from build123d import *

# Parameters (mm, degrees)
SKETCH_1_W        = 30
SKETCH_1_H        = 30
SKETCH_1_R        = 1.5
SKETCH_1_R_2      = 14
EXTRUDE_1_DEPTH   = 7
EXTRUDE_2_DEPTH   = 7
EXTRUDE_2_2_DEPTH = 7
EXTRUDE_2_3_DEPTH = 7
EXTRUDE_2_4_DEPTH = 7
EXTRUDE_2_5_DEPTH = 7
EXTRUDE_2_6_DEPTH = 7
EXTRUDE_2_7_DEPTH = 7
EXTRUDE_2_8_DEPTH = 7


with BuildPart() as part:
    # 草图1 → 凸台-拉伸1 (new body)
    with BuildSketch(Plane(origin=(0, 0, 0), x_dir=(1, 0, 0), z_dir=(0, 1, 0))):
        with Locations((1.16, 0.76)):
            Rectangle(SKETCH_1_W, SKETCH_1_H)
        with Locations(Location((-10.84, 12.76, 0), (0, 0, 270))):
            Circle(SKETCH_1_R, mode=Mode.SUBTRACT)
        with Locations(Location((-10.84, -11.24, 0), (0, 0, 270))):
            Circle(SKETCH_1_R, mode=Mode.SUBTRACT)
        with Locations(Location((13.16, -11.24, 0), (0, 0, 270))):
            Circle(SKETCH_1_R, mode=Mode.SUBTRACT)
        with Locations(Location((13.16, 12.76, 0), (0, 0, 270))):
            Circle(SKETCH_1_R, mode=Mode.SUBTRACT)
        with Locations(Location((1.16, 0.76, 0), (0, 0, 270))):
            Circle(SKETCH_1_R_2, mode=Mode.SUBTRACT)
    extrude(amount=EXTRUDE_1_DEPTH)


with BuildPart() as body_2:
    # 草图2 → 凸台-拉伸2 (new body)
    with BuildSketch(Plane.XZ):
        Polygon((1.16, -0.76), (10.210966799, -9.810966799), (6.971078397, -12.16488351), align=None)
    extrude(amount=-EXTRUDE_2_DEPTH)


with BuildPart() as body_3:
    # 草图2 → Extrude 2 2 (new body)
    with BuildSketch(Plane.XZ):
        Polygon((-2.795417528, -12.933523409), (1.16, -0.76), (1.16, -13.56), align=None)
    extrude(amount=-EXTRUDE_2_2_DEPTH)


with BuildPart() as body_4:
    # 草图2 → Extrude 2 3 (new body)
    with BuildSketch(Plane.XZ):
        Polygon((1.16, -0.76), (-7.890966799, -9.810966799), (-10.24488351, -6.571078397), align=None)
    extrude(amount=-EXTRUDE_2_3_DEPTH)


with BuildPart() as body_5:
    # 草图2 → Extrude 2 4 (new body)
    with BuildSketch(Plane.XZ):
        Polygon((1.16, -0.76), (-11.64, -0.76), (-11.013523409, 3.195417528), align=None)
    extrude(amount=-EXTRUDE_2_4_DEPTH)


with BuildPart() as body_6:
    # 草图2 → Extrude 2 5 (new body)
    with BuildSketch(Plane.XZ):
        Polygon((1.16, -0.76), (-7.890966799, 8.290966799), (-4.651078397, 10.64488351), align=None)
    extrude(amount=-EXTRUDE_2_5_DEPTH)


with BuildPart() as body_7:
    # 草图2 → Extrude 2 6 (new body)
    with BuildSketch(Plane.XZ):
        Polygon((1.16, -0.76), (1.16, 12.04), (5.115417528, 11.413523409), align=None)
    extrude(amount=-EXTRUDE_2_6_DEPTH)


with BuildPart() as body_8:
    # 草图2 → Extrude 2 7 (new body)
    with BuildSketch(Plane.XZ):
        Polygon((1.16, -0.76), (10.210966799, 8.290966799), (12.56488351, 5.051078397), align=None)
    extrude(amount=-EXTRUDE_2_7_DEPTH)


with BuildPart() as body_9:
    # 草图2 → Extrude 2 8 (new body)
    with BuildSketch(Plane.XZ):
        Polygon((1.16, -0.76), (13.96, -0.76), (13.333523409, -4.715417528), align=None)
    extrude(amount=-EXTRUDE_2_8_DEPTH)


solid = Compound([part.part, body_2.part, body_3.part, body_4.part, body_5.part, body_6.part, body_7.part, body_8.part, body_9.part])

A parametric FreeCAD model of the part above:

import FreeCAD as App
import Part
import Sketcher

V = App.Vector
Q = App.Units.Quantity

doc = App.newDocument("Part")
body = doc.addObject("PartDesign::Body", "Body")

# Sketch on XZ plane
sketch1 = body.newObject("Sketcher::SketchObject", "Sketch")
sketch1.AttachmentSupport = (doc.getObject("XZ_Plane"), [""])
sketch1.MapMode = "FlatFace"
sketch1.addGeometry([
    Part.LineSegment(V(-13.84, -15.76, 0), V(-13.84, 14.24, 0)),  # 0
    Part.LineSegment(V(-13.84, 14.24, 0), V(16.16, 14.24, 0)),  # 1
    Part.LineSegment(V(16.16, 14.24, 0), V(16.16, -15.76, 0)),  # 2
    Part.LineSegment(V(16.16, -15.76, 0), V(-13.84, -15.76, 0)),  # 3
    Part.Circle(V(-10.84, 11.24, 0), V(0, 0, 1), 1.5),  # 4
    Part.Circle(V(13.16, 11.24, 0), V(0, 0, 1), 1.5),  # 5
    Part.Circle(V(-10.84, -12.76, 0), V(0, 0, 1), 1.5),  # 6
    Part.Circle(V(1.16, -0.76, 0), V(0, 0, 1), 14),  # 7
    Part.Circle(V(13.16, -12.76, 0), V(0, 0, 1), 1.5),  # 8
], False)
sketch1.addConstraint([
    Sketcher.Constraint("Coincident", 0, 2, 1, 1),
    Sketcher.Constraint("Coincident", 1, 2, 2, 1),
    Sketcher.Constraint("Coincident", 2, 2, 3, 1),
    Sketcher.Constraint("Coincident", 3, 2, 0, 1),
    Sketcher.Constraint("Vertical", 0),
    Sketcher.Constraint("Horizontal", 1),
    Sketcher.Constraint("Vertical", 2),
    Sketcher.Constraint("Horizontal", 3),
    Sketcher.Constraint("Equal", 4, 5),
    Sketcher.Constraint("Equal", 5, 6),
    Sketcher.Constraint("Equal", 6, 8),
    Sketcher.Constraint("Horizontal", 4, 3, 5, 3),
    Sketcher.Constraint("Horizontal", 6, 3, 8, 3),
    Sketcher.Constraint("Vertical", 4, 3, 6, 3),
    Sketcher.Constraint("Vertical", 5, 3, 8, 3),
    Sketcher.Constraint("Equal", 3, 0),
    Sketcher.Constraint("Diameter", 4, Q("3 mm")),
    Sketcher.Constraint("Diameter", 7, Q("28 mm")),
    Sketcher.Constraint("DistanceX", 1, 1, 1, 2, Q("30 mm")),
    Sketcher.Constraint("DistanceX", 4, 3, 5, 3, Q("24 mm")),
    Sketcher.Constraint("DistanceY", 6, 3, 4, 3, Q("24 mm")),
    Sketcher.Constraint("DistanceX", 4, 3, 7, 3, Q("12 mm")),
    Sketcher.Constraint("DistanceY", 7, 3, 4, 3, Q("12 mm")),
    Sketcher.Constraint("DistanceX", 0, 2, 4, 3, Q("3 mm")),
    Sketcher.Constraint("DistanceY", 4, 3, 0, 2, Q("3 mm")),
    Sketcher.Constraint("DistanceX", 4, 3, -1, 1, Q("10.84 mm")),
    Sketcher.Constraint("DistanceY", -1, 1, 4, 3, Q("11.24 mm")),
])
pad1 = body.newObject("PartDesign::Pad", "Pad")
pad1.Profile = sketch1
pad1.Length = 7
pad1.Reversed = True
body2 = doc.addObject("PartDesign::Body", "Body001")

# Sketch on XZ plane
sketch2 = body2.newObject("Sketcher::SketchObject", "Sketch001")
sketch2.AttachmentSupport = (doc.getObject("XZ_Plane001"), [""])
sketch2.MapMode = "FlatFace"
sketch2.addGeometry([
    Part.LineSegment(V(10.210967, -9.810967, 0), V(1.16, -0.76, 0)),
    Part.LineSegment(V(1.16, -0.76, 0), V(6.971078, -12.164884, 0)),
    Part.LineSegment(V(6.971078, -12.164884, 0), V(10.210967, -9.810967, 0)),
], False)
sketch2.addConstraint([
    Sketcher.Constraint("Coincident", 0, 2, 1, 1),
    Sketcher.Constraint("Coincident", 1, 2, 2, 1),
    Sketcher.Constraint("Coincident", 2, 2, 0, 1),
    Sketcher.Constraint("Equal", 0, 1),
    Sketcher.Constraint("Angle", 0, Q("135 deg")),
    Sketcher.Constraint("Angle", 1, Q("-63 deg")),
    Sketcher.Constraint("Distance", 0, Q("12.8 mm")),
    Sketcher.Constraint("DistanceX", -1, 1, 0, 2, Q("1.16 mm")),
    Sketcher.Constraint("DistanceY", 0, 2, -1, 1, Q("0.76 mm")),
])
pad2 = body2.newObject("PartDesign::Pad", "Pad001")
pad2.Profile = sketch2
pad2.Length = 7
pad2.Reversed = True
body3 = doc.addObject("PartDesign::Body", "Body002")

# Sketch on XZ plane
sketch3 = body3.newObject("Sketcher::SketchObject", "Sketch002")
sketch3.AttachmentSupport = (doc.getObject("XZ_Plane002"), [""])
sketch3.MapMode = "FlatFace"
sketch3.addGeometry([
    Part.LineSegment(V(1.16, -0.76, 0), V(-2.795418, -12.933523, 0)),
    Part.LineSegment(V(-2.795418, -12.933523, 0), V(1.16, -13.56, 0)),
    Part.LineSegment(V(1.16, -13.56, 0), V(1.16, -0.76, 0)),
], False)
sketch3.addConstraint([
    Sketcher.Constraint("Coincident", 0, 2, 1, 1),
    Sketcher.Constraint("Coincident", 1, 2, 2, 1),
    Sketcher.Constraint("Coincident", 2, 2, 0, 1),
    Sketcher.Constraint("Vertical", 2),
    Sketcher.Constraint("Angle", 0, Q("-108 deg")),
    Sketcher.Constraint("Angle", 1, Q("-9 deg")),
    Sketcher.Constraint("DistanceY", 2, 1, 2, 2, Q("12.8 mm")),
    Sketcher.Constraint("DistanceX", -1, 1, 1, 2, Q("1.16 mm")),
    Sketcher.Constraint("DistanceY", 1, 2, -1, 1, Q("13.56 mm")),
])
pad3 = body3.newObject("PartDesign::Pad", "Pad002")
pad3.Profile = sketch3
pad3.Length = 7
pad3.Reversed = True
body4 = doc.addObject("PartDesign::Body", "Body003")

# Sketch on XZ plane
sketch4 = body4.newObject("Sketcher::SketchObject", "Sketch003")
sketch4.AttachmentSupport = (doc.getObject("XZ_Plane003"), [""])
sketch4.MapMode = "FlatFace"
sketch4.addGeometry([
    Part.LineSegment(V(-7.890967, -9.810967, 0), V(1.16, -0.76, 0)),
    Part.LineSegment(V(1.16, -0.76, 0), V(-10.244884, -6.571078, 0)),
    Part.LineSegment(V(-10.244884, -6.571078, 0), V(-7.890967, -9.810967, 0)),
], False)
sketch4.addConstraint([
    Sketcher.Constraint("Coincident", 0, 2, 1, 1),
    Sketcher.Constraint("Coincident", 1, 2, 2, 1),
    Sketcher.Constraint("Coincident", 2, 2, 0, 1),
    Sketcher.Constraint("Equal", 0, 1),
    Sketcher.Constraint("Angle", 0, Q("45 deg")),
    Sketcher.Constraint("Angle", 1, Q("-153 deg")),
    Sketcher.Constraint("Distance", 0, Q("12.8 mm")),
    Sketcher.Constraint("DistanceX", -1, 1, 0, 2, Q("1.16 mm")),
    Sketcher.Constraint("DistanceY", 0, 2, -1, 1, Q("0.76 mm")),
])
pad4 = body4.newObject("PartDesign::Pad", "Pad003")
pad4.Profile = sketch4
pad4.Length = 7
pad4.Reversed = True
body5 = doc.addObject("PartDesign::Body", "Body004")

# Sketch on XZ plane
sketch5 = body5.newObject("Sketcher::SketchObject", "Sketch004")
sketch5.AttachmentSupport = (doc.getObject("XZ_Plane004"), [""])
sketch5.MapMode = "FlatFace"
sketch5.addGeometry([
    Part.LineSegment(V(-11.64, -0.76, 0), V(1.16, -0.76, 0)),
    Part.LineSegment(V(1.16, -0.76, 0), V(-11.013523, 3.195418, 0)),
    Part.LineSegment(V(-11.013523, 3.195418, 0), V(-11.64, -0.76, 0)),
], False)
sketch5.addConstraint([
    Sketcher.Constraint("Coincident", 0, 2, 1, 1),
    Sketcher.Constraint("Coincident", 1, 2, 2, 1),
    Sketcher.Constraint("Coincident", 2, 2, 0, 1),
    Sketcher.Constraint("Horizontal", 0),
    Sketcher.Constraint("Angle", 1, Q("162 deg")),
    Sketcher.Constraint("Angle", 2, Q("-99 deg")),
    Sketcher.Constraint("DistanceX", 0, 1, 0, 2, Q("12.8 mm")),
    Sketcher.Constraint("DistanceX", -1, 1, 0, 2, Q("1.16 mm")),
    Sketcher.Constraint("DistanceY", 0, 2, -1, 1, Q("0.76 mm")),
])
pad5 = body5.newObject("PartDesign::Pad", "Pad004")
pad5.Profile = sketch5
pad5.Length = 7
pad5.Reversed = True
body6 = doc.addObject("PartDesign::Body", "Body005")

# Sketch on XZ plane
sketch6 = body6.newObject("Sketcher::SketchObject", "Sketch005")
sketch6.AttachmentSupport = (doc.getObject("XZ_Plane005"), [""])
sketch6.MapMode = "FlatFace"
sketch6.addGeometry([
    Part.LineSegment(V(-7.890967, 8.290967, 0), V(1.16, -0.76, 0)),
    Part.LineSegment(V(1.16, -0.76, 0), V(-4.651078, 10.644884, 0)),
    Part.LineSegment(V(-4.651078, 10.644884, 0), V(-7.890967, 8.290967, 0)),
], False)
sketch6.addConstraint([
    Sketcher.Constraint("Coincident", 0, 2, 1, 1),
    Sketcher.Constraint("Coincident", 1, 2, 2, 1),
    Sketcher.Constraint("Coincident", 2, 2, 0, 1),
    Sketcher.Constraint("Equal", 0, 1),
    Sketcher.Constraint("Angle", 0, Q("-45 deg")),
    Sketcher.Constraint("Angle", 1, Q("117 deg")),
    Sketcher.Constraint("Distance", 0, Q("12.8 mm")),
    Sketcher.Constraint("DistanceX", -1, 1, 0, 2, Q("1.16 mm")),
    Sketcher.Constraint("DistanceY", 0, 2, -1, 1, Q("0.76 mm")),
])
pad6 = body6.newObject("PartDesign::Pad", "Pad005")
pad6.Profile = sketch6
pad6.Length = 7
pad6.Reversed = True
body7 = doc.addObject("PartDesign::Body", "Body006")

# Sketch on XZ plane
sketch7 = body7.newObject("Sketcher::SketchObject", "Sketch006")
sketch7.AttachmentSupport = (doc.getObject("XZ_Plane006"), [""])
sketch7.MapMode = "FlatFace"
sketch7.addGeometry([
    Part.LineSegment(V(1.16, 12.04, 0), V(1.16, -0.76, 0)),
    Part.LineSegment(V(1.16, -0.76, 0), V(5.115418, 11.413523, 0)),
    Part.LineSegment(V(5.115418, 11.413523, 0), V(1.16, 12.04, 0)),
], False)
sketch7.addConstraint([
    Sketcher.Constraint("Coincident", 0, 2, 1, 1),
    Sketcher.Constraint("Coincident", 1, 2, 2, 1),
    Sketcher.Constraint("Coincident", 2, 2, 0, 1),
    Sketcher.Constraint("Vertical", 0),
    Sketcher.Constraint("Angle", 1, Q("72 deg")),
    Sketcher.Constraint("Angle", 2, Q("171 deg")),
    Sketcher.Constraint("DistanceY", 0, 2, 0, 1, Q("12.8 mm")),
    Sketcher.Constraint("DistanceX", -1, 1, 0, 2, Q("1.16 mm")),
    Sketcher.Constraint("DistanceY", 0, 2, -1, 1, Q("0.76 mm")),
])
pad7 = body7.newObject("PartDesign::Pad", "Pad006")
pad7.Profile = sketch7
pad7.Length = 7
pad7.Reversed = True
body8 = doc.addObject("PartDesign::Body", "Body007")

# Sketch on XZ plane
sketch8 = body8.newObject("Sketcher::SketchObject", "Sketch007")
sketch8.AttachmentSupport = (doc.getObject("XZ_Plane007"), [""])
sketch8.MapMode = "FlatFace"
sketch8.addGeometry([
    Part.LineSegment(V(10.210967, 8.290967, 0), V(1.16, -0.76, 0)),
    Part.LineSegment(V(1.16, -0.76, 0), V(12.564884, 5.051078, 0)),
    Part.LineSegment(V(12.564884, 5.051078, 0), V(10.210967, 8.290967, 0)),
], False)
sketch8.addConstraint([
    Sketcher.Constraint("Coincident", 0, 2, 1, 1),
    Sketcher.Constraint("Coincident", 1, 2, 2, 1),
    Sketcher.Constraint("Coincident", 2, 2, 0, 1),
    Sketcher.Constraint("Equal", 0, 1),
    Sketcher.Constraint("Angle", 0, Q("-135 deg")),
    Sketcher.Constraint("Angle", 1, Q("27 deg")),
    Sketcher.Constraint("Distance", 0, Q("12.8 mm")),
    Sketcher.Constraint("DistanceX", -1, 1, 0, 2, Q("1.16 mm")),
    Sketcher.Constraint("DistanceY", 0, 2, -1, 1, Q("0.76 mm")),
])
pad8 = body8.newObject("PartDesign::Pad", "Pad007")
pad8.Profile = sketch8
pad8.Length = 7
pad8.Reversed = True
body9 = doc.addObject("PartDesign::Body", "Body008")

# Sketch on XZ plane
sketch9 = body9.newObject("Sketcher::SketchObject", "Sketch008")
sketch9.AttachmentSupport = (doc.getObject("XZ_Plane008"), [""])
sketch9.MapMode = "FlatFace"
sketch9.addGeometry([
    Part.LineSegment(V(13.96, -0.76, 0), V(1.16, -0.76, 0)),
    Part.LineSegment(V(1.16, -0.76, 0), V(13.333523, -4.715418, 0)),
    Part.LineSegment(V(13.333523, -4.715418, 0), V(13.96, -0.76, 0)),
], False)
sketch9.addConstraint([
    Sketcher.Constraint("Coincident", 0, 2, 1, 1),
    Sketcher.Constraint("Coincident", 1, 2, 2, 1),
    Sketcher.Constraint("Coincident", 2, 2, 0, 1),
    Sketcher.Constraint("Horizontal", 0),
    Sketcher.Constraint("Angle", 1, Q("-18 deg")),
    Sketcher.Constraint("Angle", 2, Q("81 deg")),
    Sketcher.Constraint("DistanceX", 0, 2, 0, 1, Q("12.8 mm")),
    Sketcher.Constraint("DistanceX", -1, 1, 0, 2, Q("1.16 mm")),
    Sketcher.Constraint("DistanceY", 0, 2, -1, 1, Q("0.76 mm")),
])
pad9 = body9.newObject("PartDesign::Pad", "Pad008")
pad9.Profile = sketch9
pad9.Length = 7
pad9.Reversed = True

doc.recompute()
